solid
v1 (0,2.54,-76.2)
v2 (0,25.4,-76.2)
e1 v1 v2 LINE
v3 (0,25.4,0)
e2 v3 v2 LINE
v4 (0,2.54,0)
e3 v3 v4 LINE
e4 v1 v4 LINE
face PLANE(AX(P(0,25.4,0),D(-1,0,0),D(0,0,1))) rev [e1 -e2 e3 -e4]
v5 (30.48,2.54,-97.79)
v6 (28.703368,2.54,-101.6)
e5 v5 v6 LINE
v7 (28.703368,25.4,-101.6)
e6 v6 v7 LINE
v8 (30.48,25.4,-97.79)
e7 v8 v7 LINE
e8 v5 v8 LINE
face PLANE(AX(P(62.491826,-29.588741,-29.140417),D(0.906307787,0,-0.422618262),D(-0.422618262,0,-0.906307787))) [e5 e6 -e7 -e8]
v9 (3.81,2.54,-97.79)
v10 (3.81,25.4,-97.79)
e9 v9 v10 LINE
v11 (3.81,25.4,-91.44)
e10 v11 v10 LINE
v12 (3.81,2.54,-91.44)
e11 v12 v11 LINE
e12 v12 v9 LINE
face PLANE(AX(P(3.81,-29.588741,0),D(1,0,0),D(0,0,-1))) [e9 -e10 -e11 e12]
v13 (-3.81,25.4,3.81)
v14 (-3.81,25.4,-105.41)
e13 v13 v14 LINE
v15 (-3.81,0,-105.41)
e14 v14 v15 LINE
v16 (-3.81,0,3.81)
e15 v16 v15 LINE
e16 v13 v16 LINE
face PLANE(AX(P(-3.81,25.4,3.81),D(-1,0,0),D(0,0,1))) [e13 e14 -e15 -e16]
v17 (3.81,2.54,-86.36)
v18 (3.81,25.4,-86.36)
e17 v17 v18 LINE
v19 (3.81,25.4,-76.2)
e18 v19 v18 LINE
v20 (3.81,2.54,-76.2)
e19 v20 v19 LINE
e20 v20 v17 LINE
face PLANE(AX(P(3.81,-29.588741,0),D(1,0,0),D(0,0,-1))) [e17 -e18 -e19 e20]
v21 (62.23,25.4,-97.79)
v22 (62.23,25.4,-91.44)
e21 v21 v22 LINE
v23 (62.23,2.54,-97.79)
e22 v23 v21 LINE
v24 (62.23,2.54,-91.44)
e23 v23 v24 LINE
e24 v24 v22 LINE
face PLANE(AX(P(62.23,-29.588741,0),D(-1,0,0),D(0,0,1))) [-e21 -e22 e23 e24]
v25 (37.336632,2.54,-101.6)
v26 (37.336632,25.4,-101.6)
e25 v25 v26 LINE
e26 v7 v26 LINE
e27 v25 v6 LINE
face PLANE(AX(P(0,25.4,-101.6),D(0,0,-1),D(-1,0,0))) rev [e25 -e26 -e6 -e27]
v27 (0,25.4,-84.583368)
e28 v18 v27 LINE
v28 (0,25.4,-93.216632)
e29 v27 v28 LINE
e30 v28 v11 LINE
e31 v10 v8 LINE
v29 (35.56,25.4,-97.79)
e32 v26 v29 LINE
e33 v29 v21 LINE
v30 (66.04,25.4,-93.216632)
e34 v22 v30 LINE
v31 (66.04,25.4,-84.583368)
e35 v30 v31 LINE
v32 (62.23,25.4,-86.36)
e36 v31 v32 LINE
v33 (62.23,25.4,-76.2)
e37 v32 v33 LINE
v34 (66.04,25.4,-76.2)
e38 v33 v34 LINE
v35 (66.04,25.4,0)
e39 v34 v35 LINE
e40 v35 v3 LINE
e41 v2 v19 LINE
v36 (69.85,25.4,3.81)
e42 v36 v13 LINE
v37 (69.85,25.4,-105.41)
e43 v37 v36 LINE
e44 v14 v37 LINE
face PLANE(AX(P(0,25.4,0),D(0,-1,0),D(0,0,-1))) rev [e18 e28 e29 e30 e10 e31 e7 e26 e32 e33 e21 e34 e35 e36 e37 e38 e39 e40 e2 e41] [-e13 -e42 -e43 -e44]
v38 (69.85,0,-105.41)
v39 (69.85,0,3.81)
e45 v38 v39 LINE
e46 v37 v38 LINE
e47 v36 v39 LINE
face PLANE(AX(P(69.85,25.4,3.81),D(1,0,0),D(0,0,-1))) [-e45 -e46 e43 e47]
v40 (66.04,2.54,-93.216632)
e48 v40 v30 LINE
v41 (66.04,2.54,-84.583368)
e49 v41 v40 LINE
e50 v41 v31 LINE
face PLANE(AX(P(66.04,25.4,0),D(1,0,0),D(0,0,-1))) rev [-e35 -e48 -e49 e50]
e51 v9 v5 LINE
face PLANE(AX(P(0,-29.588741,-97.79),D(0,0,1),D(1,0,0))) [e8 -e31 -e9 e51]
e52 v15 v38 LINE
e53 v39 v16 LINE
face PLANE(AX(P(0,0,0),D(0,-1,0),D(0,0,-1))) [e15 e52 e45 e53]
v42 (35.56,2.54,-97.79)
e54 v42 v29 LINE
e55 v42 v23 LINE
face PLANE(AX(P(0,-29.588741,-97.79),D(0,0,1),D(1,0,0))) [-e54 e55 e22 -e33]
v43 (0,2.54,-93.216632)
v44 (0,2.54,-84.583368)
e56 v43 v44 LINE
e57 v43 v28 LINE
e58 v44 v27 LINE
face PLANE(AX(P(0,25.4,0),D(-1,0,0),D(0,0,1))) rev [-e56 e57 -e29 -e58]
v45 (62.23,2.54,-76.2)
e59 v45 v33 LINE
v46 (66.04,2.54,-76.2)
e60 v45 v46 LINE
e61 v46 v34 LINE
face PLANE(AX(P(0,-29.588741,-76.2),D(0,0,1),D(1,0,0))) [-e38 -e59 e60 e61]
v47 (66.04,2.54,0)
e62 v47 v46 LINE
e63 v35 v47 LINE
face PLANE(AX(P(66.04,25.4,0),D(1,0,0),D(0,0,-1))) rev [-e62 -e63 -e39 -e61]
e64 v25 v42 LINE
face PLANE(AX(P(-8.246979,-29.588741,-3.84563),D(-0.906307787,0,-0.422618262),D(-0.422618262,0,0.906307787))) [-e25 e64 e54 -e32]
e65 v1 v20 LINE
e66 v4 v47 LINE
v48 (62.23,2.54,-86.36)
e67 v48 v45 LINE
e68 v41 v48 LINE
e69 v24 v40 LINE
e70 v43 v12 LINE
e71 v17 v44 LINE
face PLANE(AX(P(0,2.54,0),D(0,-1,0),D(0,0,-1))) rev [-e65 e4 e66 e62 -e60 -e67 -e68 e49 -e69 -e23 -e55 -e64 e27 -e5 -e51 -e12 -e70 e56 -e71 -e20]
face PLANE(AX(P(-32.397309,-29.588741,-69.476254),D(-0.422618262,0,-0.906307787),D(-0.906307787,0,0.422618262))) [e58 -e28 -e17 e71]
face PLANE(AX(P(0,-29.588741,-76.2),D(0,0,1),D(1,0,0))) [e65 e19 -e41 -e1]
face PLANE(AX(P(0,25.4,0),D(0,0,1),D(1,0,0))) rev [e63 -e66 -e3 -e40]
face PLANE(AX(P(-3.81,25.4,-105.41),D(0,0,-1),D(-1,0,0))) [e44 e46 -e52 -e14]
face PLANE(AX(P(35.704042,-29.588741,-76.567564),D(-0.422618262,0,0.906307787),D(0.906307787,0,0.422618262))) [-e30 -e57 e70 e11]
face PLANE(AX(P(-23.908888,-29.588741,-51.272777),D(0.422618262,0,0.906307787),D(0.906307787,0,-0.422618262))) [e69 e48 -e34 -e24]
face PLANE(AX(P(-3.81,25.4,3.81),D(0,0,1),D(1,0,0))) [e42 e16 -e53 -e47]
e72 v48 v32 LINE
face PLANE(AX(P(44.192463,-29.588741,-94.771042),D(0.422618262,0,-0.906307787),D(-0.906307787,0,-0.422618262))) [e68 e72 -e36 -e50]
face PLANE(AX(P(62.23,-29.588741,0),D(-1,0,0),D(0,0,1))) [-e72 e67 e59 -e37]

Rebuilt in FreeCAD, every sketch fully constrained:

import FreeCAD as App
import Part
import Sketcher

V = App.Vector
Q = App.Units.Quantity


def add_polygon(sketch, points):
    """Adds a closed chain of lines whose ends are joined by coincident constraints."""
    first, n = sketch.GeometryCount, len(points)
    for a, b in zip(points, points[1:] + points[:1]):
        sketch.addGeometry(Part.LineSegment(App.Vector(*a, 0), App.Vector(*b, 0)), False)
    for i in range(n):
        sketch.addConstraint(Sketcher.Constraint("Coincident", first + i, 2, first + (i + 1) % n, 1))

doc = App.newDocument("Part")
body = doc.addObject("PartDesign::Body", "Body")

sketch1 = doc.addObject("Sketcher::SketchObject", "Sketch")
body.addObject(sketch1)
sketch1.AttachmentSupport = (doc.XZ_Plane, [""])
sketch1.MapMode = "FlatFace"
add_polygon(sketch1, [(0, -102), (0, 0), (66, 0), (66, -102)])
sketch1.addConstraint([
    Sketcher.Constraint("Vertical", 0),
    Sketcher.Constraint("Horizontal", 1),
    Sketcher.Constraint("Vertical", 2),
    Sketcher.Constraint("Horizontal", 3),
    Sketcher.Constraint("Coincident", 0, 2, -1, 1),
    Sketcher.Constraint("DistanceY", 0, 1, 0, 2, Q("4 in")),
    Sketcher.Constraint("DistanceX", 1, 1, 1, 2, Q("2.6 in")),
])
pad1 = doc.addObject("PartDesign::Pad", "Pad")
body.addObject(pad1)
pad1.Profile = sketch1
pad1.Length = Q("0.1 in")
pad1.Reversed = True

sketch2 = doc.addObject("Sketcher::SketchObject", "Sketch001")
body.addObject(sketch2)
sketch2.AttachmentSupport = (doc.XZ_Plane, [""])
sketch2.MapMode = "FlatFace"
add_polygon(sketch2, [(-4, 4), (-4, -105), (70, -105), (70, 4)])
add_polygon(sketch2, [(66, -102), (0, -102), (0, 0), (66, 0)])
sketch2.addConstraint([
    Sketcher.Constraint("Vertical", 0),
    Sketcher.Constraint("Horizontal", 1),
    Sketcher.Constraint("Vertical", 2),
    Sketcher.Constraint("Horizontal", 3),
    Sketcher.Constraint("Horizontal", 4),
    Sketcher.Constraint("Vertical", 5),
    Sketcher.Constraint("Horizontal", 6),
    Sketcher.Constraint("Vertical", 7),
    Sketcher.Constraint("Coincident", 5, 2, -1, 1),
    Sketcher.Constraint("DistanceY", 5, 1, 5, 2, Q("4 in")),
    Sketcher.Constraint("DistanceX", 1, 1, 1, 2, Q("2.9 in")),
    Sketcher.Constraint("DistanceX", 4, 2, 4, 1, Q("2.6 in")),
    Sketcher.Constraint("DistanceY", 0, 2, 0, 1, Q("4.3 in")),
    Sketcher.Constraint("DistanceX", 0, 2, -1, 1, Q("0.15 in")),
    Sketcher.Constraint("DistanceY", 0, 2, -1, 1, Q("4.15 in")),
])
pad2 = doc.addObject("PartDesign::Pad", "Pad001")
body.addObject(pad2)
pad2.Profile = sketch2
pad2.Length = Q("1 in")
pad2.Reversed = True

sketch3 = doc.addObject("Sketcher::SketchObject", "Sketch002")
body.addObject(sketch3)
sketch3.AttachmentSupport = (doc.XZ_Plane, [""])
sketch3.MapMode = "FlatFace"
sketch3.AttachmentOffset = App.Placement(V(0, 0, -1 * 25.4), App.Rotation())
add_polygon(sketch3, [(3.8, -86.4), (0, -84.6), (0, -76.2), (3.8, -76.2)])
add_polygon(sketch3, [(28.7, -101.6), (0, -101.6), (0, -93.2), (3.8, -91.4), (3.8, -97.8), (30.5, -97.8)])
add_polygon(sketch3, [(66, -101.6), (37.3, -101.6), (35.6, -97.8), (62.2, -97.8), (62.2, -91.4), (66, -93.2)])
add_polygon(sketch3, [(66, -76.2), (66, -84.6), (62.2, -86.4), (62.2, -76.2)])
sketch3.addConstraint([
    Sketcher.Constraint("Vertical", 1),
    Sketcher.Constraint("Horizontal", 2),
    Sketcher.Constraint("Vertical", 3),
    Sketcher.Constraint("Horizontal", 4),
    Sketcher.Constraint("Vertical", 5),
    Sketcher.Constraint("Vertical", 7),
    Sketcher.Constraint("Horizontal", 8),
    Sketcher.Constraint("Horizontal", 10),
    Sketcher.Constraint("Horizontal", 12),
    Sketcher.Constraint("Vertical", 13),
    Sketcher.Constraint("Vertical", 15),
    Sketcher.Constraint("Vertical", 16),
    Sketcher.Constraint("Vertical", 18),
    Sketcher.Constraint("Horizontal", 19),
    Sketcher.Constraint("PointOnObject", 0, 2, -2),
    Sketcher.Constraint("PointOnObject", 4, 2, -2),
    Sketcher.Constraint("Perpendicular", 0, 9),
    Sketcher.Constraint("Perpendicular", 6, 11),
    Sketcher.Constraint("Perpendicular", 9, 14),
    Sketcher.Constraint("Perpendicular", 11, 17),
    Sketcher.Constraint("Horizontal", 9, 2, 10, 2),
    Sketcher.Constraint("Horizontal", 8, 2, 11, 2),
    Sketcher.Constraint("Horizontal", 6, 2, 13, 2),
    Sketcher.Constraint("Horizontal", 5, 2, 14, 2),
    Sketcher.Constraint("Horizontal", 0, 2, 16, 2),
    Sketcher.Constraint("Horizontal", 3, 2, 17, 2),
    Sketcher.Constraint("Horizontal", 2, 2, 18, 2),
    Sketcher.Constraint("Vertical", 3, 2, 6, 2),
    Sketcher.Constraint("Vertical", 15, 2, 16, 2),
    Sketcher.Constraint("Vertical", 13, 2, 17, 2),
    Sketcher.Constraint("Equal", 4, 10),
    Sketcher.Constraint("Equal", 1, 5),
    Sketcher.Constraint("Equal", 6, 9),
    Sketcher.Constraint("DistanceY", 3, 2, 3, 1, Q("0.4 in")),
    Sketcher.Constraint("DistanceY", 1, 2, -1, 1, Q("3 in")),
    Sketcher.Constraint("DistanceY", 4, 2, -1, 1, Q("4 in")),
    Sketcher.Constraint("Angle", 0, Q("155 deg")),
    Sketcher.Constraint("DistanceX", 2, 1, 2, 2, Q("0.15 in")),
    Sketcher.Constraint("DistanceX", 8, 1, 8, 2, Q("1.05 in")),
    Sketcher.Constraint("DistanceX", -1, 1, 11, 2, Q("1.4 in")),
])
pad3 = doc.addObject("PartDesign::Pad", "Pad002")
body.addObject(pad3)
pad3.Profile = sketch3
pad3.Length = Q("0.9 in")

doc.recompute()
